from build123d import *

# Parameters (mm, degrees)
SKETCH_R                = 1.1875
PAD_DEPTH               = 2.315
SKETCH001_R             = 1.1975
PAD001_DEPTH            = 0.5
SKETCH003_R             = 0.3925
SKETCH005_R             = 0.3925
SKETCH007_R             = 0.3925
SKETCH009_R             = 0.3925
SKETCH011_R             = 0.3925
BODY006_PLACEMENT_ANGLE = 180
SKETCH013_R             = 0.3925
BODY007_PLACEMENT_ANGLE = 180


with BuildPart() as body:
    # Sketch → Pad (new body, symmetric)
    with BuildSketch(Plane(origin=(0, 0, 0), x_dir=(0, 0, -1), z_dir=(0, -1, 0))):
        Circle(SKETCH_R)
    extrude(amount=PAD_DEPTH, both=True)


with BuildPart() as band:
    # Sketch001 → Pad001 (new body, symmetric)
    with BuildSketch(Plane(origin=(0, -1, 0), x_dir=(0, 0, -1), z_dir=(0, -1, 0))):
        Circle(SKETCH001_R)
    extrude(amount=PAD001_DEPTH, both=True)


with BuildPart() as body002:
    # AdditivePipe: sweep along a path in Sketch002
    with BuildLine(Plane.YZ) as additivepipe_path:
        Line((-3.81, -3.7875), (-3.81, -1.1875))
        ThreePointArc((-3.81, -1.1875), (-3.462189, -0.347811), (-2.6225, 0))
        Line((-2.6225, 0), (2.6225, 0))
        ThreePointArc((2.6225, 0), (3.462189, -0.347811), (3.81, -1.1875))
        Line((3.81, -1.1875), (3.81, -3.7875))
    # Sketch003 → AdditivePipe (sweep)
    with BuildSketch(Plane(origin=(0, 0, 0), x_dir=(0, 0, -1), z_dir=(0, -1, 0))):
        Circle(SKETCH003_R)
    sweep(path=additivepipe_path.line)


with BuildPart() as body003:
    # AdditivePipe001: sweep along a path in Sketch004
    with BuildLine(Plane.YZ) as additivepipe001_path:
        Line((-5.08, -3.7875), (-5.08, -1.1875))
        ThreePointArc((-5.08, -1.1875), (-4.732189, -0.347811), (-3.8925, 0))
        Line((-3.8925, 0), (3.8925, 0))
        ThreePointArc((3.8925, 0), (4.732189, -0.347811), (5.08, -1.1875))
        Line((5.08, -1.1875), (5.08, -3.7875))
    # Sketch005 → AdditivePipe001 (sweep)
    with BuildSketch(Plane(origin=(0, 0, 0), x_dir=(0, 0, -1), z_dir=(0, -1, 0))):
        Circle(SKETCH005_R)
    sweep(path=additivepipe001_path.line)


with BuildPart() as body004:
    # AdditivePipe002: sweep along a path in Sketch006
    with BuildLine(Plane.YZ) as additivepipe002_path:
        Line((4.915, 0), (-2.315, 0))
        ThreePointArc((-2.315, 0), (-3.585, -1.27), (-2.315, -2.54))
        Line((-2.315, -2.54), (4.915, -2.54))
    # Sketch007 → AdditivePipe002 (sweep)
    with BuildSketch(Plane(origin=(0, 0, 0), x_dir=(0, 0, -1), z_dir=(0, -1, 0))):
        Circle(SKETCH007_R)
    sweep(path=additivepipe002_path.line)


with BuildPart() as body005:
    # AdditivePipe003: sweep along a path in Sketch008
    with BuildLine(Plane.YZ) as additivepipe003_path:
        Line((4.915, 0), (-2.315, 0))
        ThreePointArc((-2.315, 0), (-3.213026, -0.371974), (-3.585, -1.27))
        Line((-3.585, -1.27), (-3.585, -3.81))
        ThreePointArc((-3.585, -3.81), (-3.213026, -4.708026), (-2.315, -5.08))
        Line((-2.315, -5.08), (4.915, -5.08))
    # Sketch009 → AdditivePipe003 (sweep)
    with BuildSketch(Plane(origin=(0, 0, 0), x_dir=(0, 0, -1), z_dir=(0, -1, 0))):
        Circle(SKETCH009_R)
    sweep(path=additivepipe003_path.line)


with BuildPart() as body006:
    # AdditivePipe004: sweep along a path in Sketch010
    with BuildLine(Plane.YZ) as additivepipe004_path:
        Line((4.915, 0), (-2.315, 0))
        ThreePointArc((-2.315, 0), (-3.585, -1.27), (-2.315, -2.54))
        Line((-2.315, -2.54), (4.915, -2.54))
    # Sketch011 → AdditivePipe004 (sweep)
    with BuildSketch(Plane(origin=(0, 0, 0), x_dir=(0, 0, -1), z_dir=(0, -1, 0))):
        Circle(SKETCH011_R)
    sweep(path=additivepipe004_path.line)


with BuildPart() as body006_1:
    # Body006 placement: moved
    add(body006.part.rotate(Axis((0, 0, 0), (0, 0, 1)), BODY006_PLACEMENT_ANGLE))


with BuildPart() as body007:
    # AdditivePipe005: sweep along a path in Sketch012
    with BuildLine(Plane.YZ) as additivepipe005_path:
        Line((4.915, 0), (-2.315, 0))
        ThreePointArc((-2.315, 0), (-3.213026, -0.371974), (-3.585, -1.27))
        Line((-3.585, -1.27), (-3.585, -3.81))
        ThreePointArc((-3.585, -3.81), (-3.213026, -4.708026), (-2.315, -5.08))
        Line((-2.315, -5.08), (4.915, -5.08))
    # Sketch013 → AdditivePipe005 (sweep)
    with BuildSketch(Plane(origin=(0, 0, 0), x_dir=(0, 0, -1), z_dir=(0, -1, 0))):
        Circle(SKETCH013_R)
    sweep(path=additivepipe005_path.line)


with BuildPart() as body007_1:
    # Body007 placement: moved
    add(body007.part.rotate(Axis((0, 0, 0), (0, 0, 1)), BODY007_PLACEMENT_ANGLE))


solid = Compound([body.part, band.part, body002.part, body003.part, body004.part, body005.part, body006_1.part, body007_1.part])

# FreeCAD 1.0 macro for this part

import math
import FreeCAD as App
import Part
import Sketcher

doc = App.newDocument("Part")
params = doc.addObject("Spreadsheet::Sheet", "Params")
for row, (alias, value) in enumerate([
    ("pad1_length", "4.63 mm"),
    ("pad2_length", "1 mm"),
    ("sketch4_height", "2.6 mm"),
    ("sketch6_height", "2.6 mm"),
    ("sketch8_radius", "1.27 mm"),
    ("sketch8_width", "7.23 mm"),
    ("sketch10_radius", "1.269999 mm"),
    ("sketch10_width", "7.23 mm"),
    ("sketch10_height", "2.54 mm"),
    ("sketch12_radius", "1.27 mm"),
    ("sketch12_width", "7.23 mm"),
    ("sketch14_radius", "1.269999 mm"),
    ("sketch14_width", "7.23 mm"),
    ("sketch14_height", "2.54 mm"),
], start=1):
    params.set(f"A{row}", alias)
    params.set(f"B{row}", "=" + value)
    params.setAlias(f"B{row}", alias)

body = doc.addObject("PartDesign::Body", "Body")

# Sketch on XZ plane
sketch1 = body.newObject("Sketcher::SketchObject", "Sketch")
sketch1.AttachmentSupport = (doc.getObject("XZ_Plane"), [""])
sketch1.MapMode = "FlatFace"
sketch1.addGeometry(Part.Circle(App.Vector(0, 0, 0), App.Vector(0, 0, 1), 1.2), False)
sketch1.addConstraint(Sketcher.Constraint("Coincident", 0, 3, -1, 1))
sketch1.addConstraint(Sketcher.Constraint("Diameter", 0, 2.375))
pad1 = body.newObject("PartDesign::Pad", "Pad")
pad1.Profile = sketch1
pad1.setExpression("Length", "Params.pad1_length")
pad1.Midplane = True
body2 = doc.addObject("PartDesign::Body", "Body001")

# Sketch on XZ plane
sketch2 = body2.newObject("Sketcher::SketchObject", "Sketch001")
sketch2.AttachmentSupport = (doc.getObject("XZ_Plane001"), [""])
sketch2.MapMode = "FlatFace"
sketch2.AttachmentOffset = App.Placement(App.Vector(0, 0, 1), App.Rotation())
sketch2.addGeometry(Part.Circle(App.Vector(0, 0, 0), App.Vector(0, 0, 1), 1.2), False)
sketch2.addConstraint(Sketcher.Constraint("Coincident", 0, 3, -1, 1))
sketch2.addConstraint(Sketcher.Constraint("Diameter", 0, 2.395))
pad2 = body2.newObject("PartDesign::Pad", "Pad001")
pad2.Profile = sketch2
pad2.setExpression("Length", "Params.pad2_length")
pad2.Midplane = True
body3 = doc.addObject("PartDesign::Body", "Body002")

# Sketch on XZ plane
sketch3 = body3.newObject("Sketcher::SketchObject", "Sketch002")
sketch3.AttachmentSupport = (doc.getObject("XZ_Plane002"), [""])
sketch3.MapMode = "FlatFace"
sketch3.addGeometry(Part.Circle(App.Vector(0, 0, 0), App.Vector(0, 0, 1), 0.39), False)
sketch3.addConstraint(Sketcher.Constraint("Coincident", 0, 3, -1, 1))
sketch3.addConstraint(Sketcher.Constraint("Diameter", 0, 0.785))

# Sketch on YZ plane
sketch4 = body3.newObject("Sketcher::SketchObject", "Sketch003")
sketch4.AttachmentSupport = (doc.getObject("YZ_Plane002"), [""])
sketch4.MapMode = "FlatFace"
sketch4.addGeometry(Part.LineSegment(App.Vector(-3.8, -3.8, 0), App.Vector(-3.8, -1.2, 0)), False)
sketch4.addGeometry(Part.ArcOfCircle(Part.Circle(App.Vector(-2.6, -1.2, 0), App.Vector(0, 0, 1), 1.2), math.radians(90), math.radians(180)), False)
sketch4.addGeometry(Part.LineSegment(App.Vector(-2.6, 0, 0), App.Vector(2.6, 0, 0)), False)
sketch4.addGeometry(Part.ArcOfCircle(Part.Circle(App.Vector(2.6, -1.2, 0), App.Vector(0, 0, 1), 1.2), math.radians(0), math.radians(90)), False)
sketch4.addGeometry(Part.LineSegment(App.Vector(3.8, -1.2, 0), App.Vector(3.8, -3.8, 0)), False)
sketch4.addConstraint(Sketcher.Constraint("Tangent", 0, 2, 1, 2))
sketch4.addConstraint(Sketcher.Constraint("Tangent", 1, 1, 2, 1))
sketch4.addConstraint(Sketcher.Constraint("Tangent", 2, 2, 3, 2))
sketch4.addConstraint(Sketcher.Constraint("Tangent", 3, 1, 4, 1))
sketch4.addConstraint(Sketcher.Constraint("Vertical", 0))
sketch4.addConstraint(Sketcher.Constraint("Horizontal", 2))
sketch4.addConstraint(Sketcher.Constraint("Vertical", 4))
sketch4.addConstraint(Sketcher.Constraint("Equal", 1, 3))
sketch4.addConstraint(Sketcher.Constraint("Symmetric", 1, 1, 2, 2, -1, 1))
sketch4.addConstraint(Sketcher.Constraint("Horizontal", 0, 1, 4, 2))
sketch4.addConstraint(Sketcher.Constraint("DistanceY", 0, 1, 0, 2, 2.6))
sketch4.addConstraint(Sketcher.Constraint("Radius", 1, 1.187501))
sketch4.addConstraint(Sketcher.Constraint("DistanceX", 2, 1, 2, 2, 5.245))
sketch4.setExpression("Constraints[10]", "Params.sketch4_height")
doc.recompute()

additivepipe = body3.newObject("PartDesign::AdditivePipe", "AdditivePipe")
additivepipe.Profile = sketch3
additivepipe.Spine = (sketch4, ["Edge1", "Edge2", "Edge3", "Edge4", "Edge5"])
body4 = doc.addObject("PartDesign::Body", "Body003")

# Sketch on XZ plane
sketch5 = body4.newObject("Sketcher::SketchObject", "Sketch004")
sketch5.AttachmentSupport = (doc.getObject("XZ_Plane003"), [""])
sketch5.MapMode = "FlatFace"
sketch5.addGeometry(Part.Circle(App.Vector(0, 0, 0), App.Vector(0, 0, 1), 0.39), False)
sketch5.addConstraint(Sketcher.Constraint("Coincident", 0, 3, -1, 1))
sketch5.addConstraint(Sketcher.Constraint("Diameter", 0, 0.785))

# Sketch on YZ plane
sketch6 = body4.newObject("Sketcher::SketchObject", "Sketch005")
sketch6.AttachmentSupport = (doc.getObject("YZ_Plane003"), [""])
sketch6.MapMode = "FlatFace"
sketch6.addGeometry(Part.LineSegment(App.Vector(-5.1, -3.8, 0), App.Vector(-5.1, -1.2, 0)), False)
sketch6.addGeometry(Part.ArcOfCircle(Part.Circle(App.Vector(-3.9, -1.2, 0), App.Vector(0, 0, 1), 1.2), math.radians(90), math.radians(180)), False)
sketch6.addGeometry(Part.LineSegment(App.Vector(-3.9, 0, 0), App.Vector(3.9, 0, 0)), False)
sketch6.addGeometry(Part.ArcOfCircle(Part.Circle(App.Vector(3.9, -1.2, 0), App.Vector(0, 0, 1), 1.2), math.radians(0), math.radians(90)), False)
sketch6.addGeometry(Part.LineSegment(App.Vector(5.1, -1.2, 0), App.Vector(5.1, -3.8, 0)), False)
sketch6.addConstraint(Sketcher.Constraint("Tangent", 0, 2, 1, 2))
sketch6.addConstraint(Sketcher.Constraint("Tangent", 1, 1, 2, 1))
sketch6.addConstraint(Sketcher.Constraint("Tangent", 2, 2, 3, 2))
sketch6.addConstraint(Sketcher.Constraint("Tangent", 3, 1, 4, 1))
sketch6.addConstraint(Sketcher.Constraint("Vertical", 0))
sketch6.addConstraint(Sketcher.Constraint("Horizontal", 2))
sketch6.addConstraint(Sketcher.Constraint("Vertical", 4))
sketch6.addConstraint(Sketcher.Constraint("Equal", 1, 3))
sketch6.addConstraint(Sketcher.Constraint("Symmetric", 1, 1, 2, 2, -1, 1))
sketch6.addConstraint(Sketcher.Constraint("Horizontal", 0, 1, 4, 2))
sketch6.addConstraint(Sketcher.Constraint("DistanceY", 0, 1, 0, 2, 2.6))
sketch6.addConstraint(Sketcher.Constraint("Radius", 1, 1.187501))
sketch6.addConstraint(Sketcher.Constraint("DistanceX", 2, 1, 2, 2, 7.785))
sketch6.setExpression("Constraints[10]", "Params.sketch6_height")
doc.recompute()

additivepipe2 = body4.newObject("PartDesign::AdditivePipe", "AdditivePipe001")
additivepipe2.Profile = sketch5
additivepipe2.Spine = (sketch6, ["Edge1", "Edge2", "Edge3", "Edge4", "Edge5"])
body5 = doc.addObject("PartDesign::Body", "Body004")

# Sketch on XZ plane
sketch7 = body5.newObject("Sketcher::SketchObject", "Sketch006")
sketch7.AttachmentSupport = (doc.getObject("XZ_Plane004"), [""])
sketch7.MapMode = "FlatFace"
sketch7.addGeometry(Part.Circle(App.Vector(0, 0, 0), App.Vector(0, 0, 1), 0.39), False)
sketch7.addConstraint(Sketcher.Constraint("Coincident", 0, 3, -1, 1))
sketch7.addConstraint(Sketcher.Constraint("Diameter", 0, 0.785))

# Sketch on YZ plane
sketch8 = body5.newObject("Sketcher::SketchObject", "Sketch007")
sketch8.AttachmentSupport = (doc.getObject("YZ_Plane004"), [""])
sketch8.MapMode = "FlatFace"
sketch8.addGeometry(Part.LineSegment(App.Vector(4.9, 0, 0), App.Vector(-2.3, 0, 0)), False)
sketch8.addGeometry(Part.ArcOfCircle(Part.Circle(App.Vector(-2.3, -1.3, 0), App.Vector(0, 0, 1), 1.3), math.radians(90), math.radians(270)), False)
sketch8.addGeometry(Part.LineSegment(App.Vector(-2.3, -2.5, 0), App.Vector(4.9, -2.5, 0)), False)
sketch8.addConstraint(Sketcher.Constraint("Tangent", 0, 2, 1, 1))
sketch8.addConstraint(Sketcher.Constraint("Tangent", 1, 2, 2, 1))
sketch8.addConstraint(Sketcher.Constraint("Horizontal", 0))
sketch8.addConstraint(Sketcher.Constraint("Horizontal", 2))
sketch8.addConstraint(Sketcher.Constraint("PointOnObject", 0, 1, -1))
sketch8.addConstraint(Sketcher.Constraint("Vertical", 0, 1, 2, 2))
sketch8.addConstraint(Sketcher.Constraint("Radius", 1, 1.27))
sketch8.addConstraint(Sketcher.Constraint("DistanceX", 0, 2, 0, 1, 7.23))
sketch8.addConstraint(Sketcher.Constraint("DistanceX", 1, 3, -1, 1, 2.315))
sketch8.setExpression("Constraints[6]", "Params.sketch8_radius")
sketch8.setExpression("Constraints[7]", "Params.sketch8_width")
doc.recompute()

additivepipe3 = body5.newObject("PartDesign::AdditivePipe", "AdditivePipe002")
additivepipe3.Profile = sketch7
additivepipe3.Spine = (sketch8, ["Edge1", "Edge2", "Edge3"])
body6 = doc.addObject("PartDesign::Body", "Body005")

# Sketch on XZ plane
sketch9 = body6.newObject("Sketcher::SketchObject", "Sketch008")
sketch9.AttachmentSupport = (doc.getObject("XZ_Plane005"), [""])
sketch9.MapMode = "FlatFace"
sketch9.addGeometry(Part.Circle(App.Vector(0, 0, 0), App.Vector(0, 0, 1), 0.39), False)
sketch9.addConstraint(Sketcher.Constraint("Coincident", 0, 3, -1, 1))
sketch9.addConstraint(Sketcher.Constraint("Diameter", 0, 0.785))

# Sketch on YZ plane
sketch10 = body6.newObject("Sketcher::SketchObject", "Sketch009")
sketch10.AttachmentSupport = (doc.getObject("YZ_Plane005"), [""])
sketch10.MapMode = "FlatFace"
sketch10.addGeometry(Part.LineSegment(App.Vector(4.9, 0, 0), App.Vector(-2.3, 0, 0)), False)
sketch10.addGeometry(Part.ArcOfCircle(Part.Circle(App.Vector(-2.3, -1.3, 0), App.Vector(0, 0, 1), 1.3), math.radians(90), math.radians(180)), False)
sketch10.addGeometry(Part.LineSegment(App.Vector(-3.6, -1.3, 0), App.Vector(-3.6, -3.8, 0)), False)
sketch10.addGeometry(Part.ArcOfCircle(Part.Circle(App.Vector(-2.3, -3.8, 0), App.Vector(0, 0, 1), 1.3), math.radians(180), math.radians(270)), False)
sketch10.addGeometry(Part.LineSegment(App.Vector(-2.3, -5.1, 0), App.Vector(4.9, -5.1, 0)), False)
sketch10.addConstraint(Sketcher.Constraint("Tangent", 0, 2, 1, 1))
sketch10.addConstraint(Sketcher.Constraint("Tangent", 1, 2, 2, 1))
sketch10.addConstraint(Sketcher.Constraint("Tangent", 2, 2, 3, 1))
sketch10.addConstraint(Sketcher.Constraint("Tangent", 3, 2, 4, 1))
sketch10.addConstraint(Sketcher.Constraint("Horizontal", 0))
sketch10.addConstraint(Sketcher.Constraint("Vertical", 2))
sketch10.addConstraint(Sketcher.Constraint("Horizontal", 4))
sketch10.addConstraint(Sketcher.Constraint("Equal", 1, 3))
sketch10.addConstraint(Sketcher.Constraint("PointOnObject", 0, 1, -1))
sketch10.addConstraint(Sketcher.Constraint("Vertical", 0, 1, 4, 2))
sketch10.addConstraint(Sketcher.Constraint("Radius", 1, 1.269999))
sketch10.addConstraint(Sketcher.Constraint("DistanceX", 0, 2, 0, 1, 7.23))
sketch10.addConstraint(Sketcher.Constraint("DistanceY", 2, 2, 2, 1, 2.54))
sketch10.addConstraint(Sketcher.Constraint("DistanceX", 1, 3, -1, 1, 2.315001))
sketch10.setExpression("Constraints[10]", "Params.sketch10_radius")
sketch10.setExpression("Constraints[11]", "Params.sketch10_width")
sketch10.setExpression("Constraints[12]", "Params.sketch10_height")
doc.recompute()

additivepipe4 = body6.newObject("PartDesign::AdditivePipe", "AdditivePipe003")
additivepipe4.Profile = sketch9
additivepipe4.Spine = (sketch10, ["Edge1", "Edge2", "Edge3", "Edge4", "Edge5"])
body7 = doc.addObject("PartDesign::Body", "Body006")

# Sketch on XZ plane
sketch11 = body7.newObject("Sketcher::SketchObject", "Sketch010")
sketch11.AttachmentSupport = (doc.getObject("XZ_Plane006"), [""])
sketch11.MapMode = "FlatFace"
sketch11.addGeometry(Part.Circle(App.Vector(0, 0, 0), App.Vector(0, 0, 1), 0.39), False)
sketch11.addConstraint(Sketcher.Constraint("Coincident", 0, 3, -1, 1))
sketch11.addConstraint(Sketcher.Constraint("Diameter", 0, 0.785))

# Sketch on YZ plane
sketch12 = body7.newObject("Sketcher::SketchObject", "Sketch011")
sketch12.AttachmentSupport = (doc.getObject("YZ_Plane006"), [""])
sketch12.MapMode = "FlatFace"
sketch12.addGeometry(Part.LineSegment(App.Vector(4.9, 0, 0), App.Vector(-2.3, 0, 0)), False)
sketch12.addGeometry(Part.ArcOfCircle(Part.Circle(App.Vector(-2.3, -1.3, 0), App.Vector(0, 0, 1), 1.3), math.radians(90), math.radians(270)), False)
sketch12.addGeometry(Part.LineSegment(App.Vector(-2.3, -2.5, 0), App.Vector(4.9, -2.5, 0)), False)
sketch12.addConstraint(Sketcher.Constraint("Tangent", 0, 2, 1, 1))
sketch12.addConstraint(Sketcher.Constraint("Tangent", 1, 2, 2, 1))
sketch12.addConstraint(Sketcher.Constraint("Horizontal", 0))
sketch12.addConstraint(Sketcher.Constraint("Horizontal", 2))
sketch12.addConstraint(Sketcher.Constraint("PointOnObject", 0, 1, -1))
sketch12.addConstraint(Sketcher.Constraint("Vertical", 0, 1, 2, 2))
sketch12.addConstraint(Sketcher.Constraint("Radius", 1, 1.27))
sketch12.addConstraint(Sketcher.Constraint("DistanceX", 0, 2, 0, 1, 7.23))
sketch12.addConstraint(Sketcher.Constraint("DistanceX", 1, 3, -1, 1, 2.315))
sketch12.setExpression("Constraints[6]", "Params.sketch12_radius")
sketch12.setExpression("Constraints[7]", "Params.sketch12_width")
doc.recompute()

additivepipe5 = body7.newObject("PartDesign::AdditivePipe", "AdditivePipe004")
additivepipe5.Profile = sketch11
additivepipe5.Spine = (sketch12, ["Edge1", "Edge2", "Edge3"])
body8 = doc.addObject("PartDesign::Body", "Body007")
doc.recompute()

body7.Placement = App.Placement(App.Vector(0, 0, 0), App.Rotation(App.Vector(0, 0, 1), 180))
boolean = body8.newObject("PartDesign::Boolean", "Boolean")
boolean.Type = "Fuse"
boolean.addObjects([body7])
body9 = doc.addObject("PartDesign::Body", "Body008")

# Sketch on XZ plane
sketch13 = body9.newObject("Sketcher::SketchObject", "Sketch012")
sketch13.AttachmentSupport = (doc.getObject("XZ_Plane008"), [""])
sketch13.MapMode = "FlatFace"
sketch13.addGeometry(Part.Circle(App.Vector(0, 0, 0), App.Vector(0, 0, 1), 0.39), False)
sketch13.addConstraint(Sketcher.Constraint("Coincident", 0, 3, -1, 1))
sketch13.addConstraint(Sketcher.Constraint("Diameter", 0, 0.785))

# Sketch on YZ plane
sketch14 = body9.newObject("Sketcher::SketchObject", "Sketch013")
sketch14.AttachmentSupport = (doc.getObject("YZ_Plane008"), [""])
sketch14.MapMode = "FlatFace"
sketch14.addGeometry(Part.LineSegment(App.Vector(4.9, 0, 0), App.Vector(-2.3, 0, 0)), False)
sketch14.addGeometry(Part.ArcOfCircle(Part.Circle(App.Vector(-2.3, -1.3, 0), App.Vector(0, 0, 1), 1.3), math.radians(90), math.radians(180)), False)
sketch14.addGeometry(Part.LineSegment(App.Vector(-3.6, -1.3, 0), App.Vector(-3.6, -3.8, 0)), False)
sketch14.addGeometry(Part.ArcOfCircle(Part.Circle(App.Vector(-2.3, -3.8, 0), App.Vector(0, 0, 1), 1.3), math.radians(180), math.radians(270)), False)
sketch14.addGeometry(Part.LineSegment(App.Vector(-2.3, -5.1, 0), App.Vector(4.9, -5.1, 0)), False)
sketch14.addConstraint(Sketcher.Constraint("Tangent", 0, 2, 1, 1))
sketch14.addConstraint(Sketcher.Constraint("Tangent", 1, 2, 2, 1))
sketch14.addConstraint(Sketcher.Constraint("Tangent", 2, 2, 3, 1))
sketch14.addConstraint(Sketcher.Constraint("Tangent", 3, 2, 4, 1))
sketch14.addConstraint(Sketcher.Constraint("Horizontal", 0))
sketch14.addConstraint(Sketcher.Constraint("Vertical", 2))
sketch14.addConstraint(Sketcher.Constraint("Horizontal", 4))
sketch14.addConstraint(Sketcher.Constraint("Equal", 1, 3))
sketch14.addConstraint(Sketcher.Constraint("PointOnObject", 0, 1, -1))
sketch14.addConstraint(Sketcher.Constraint("Vertical", 0, 1, 4, 2))
sketch14.addConstraint(Sketcher.Constraint("Radius", 1, 1.269999))
sketch14.addConstraint(Sketcher.Constraint("DistanceX", 0, 2, 0, 1, 7.23))
sketch14.addConstraint(Sketcher.Constraint("DistanceY", 2, 2, 2, 1, 2.54))
sketch14.addConstraint(Sketcher.Constraint("DistanceX", 1, 3, -1, 1, 2.315001))
sketch14.setExpression("Constraints[10]", "Params.sketch14_radius")
sketch14.setExpression("Constraints[11]", "Params.sketch14_width")
sketch14.setExpression("Constraints[12]", "Params.sketch14_height")
doc.recompute()

additivepipe6 = body9.newObject("PartDesign::AdditivePipe", "AdditivePipe005")
additivepipe6.Profile = sketch13
additivepipe6.Spine = (sketch14, ["Edge1", "Edge2", "Edge3", "Edge4", "Edge5"])
body10 = doc.addObject("PartDesign::Body", "Body009")
doc.recompute()

body9.Placement = App.Placement(App.Vector(0, 0, 0), App.Rotation(App.Vector(0, 0, 1), 180))
boolean2 = body10.newObject("PartDesign::Boolean", "Boolean001")
boolean2.Type = "Fuse"
boolean2.addObjects([body9])

doc.recompute()
